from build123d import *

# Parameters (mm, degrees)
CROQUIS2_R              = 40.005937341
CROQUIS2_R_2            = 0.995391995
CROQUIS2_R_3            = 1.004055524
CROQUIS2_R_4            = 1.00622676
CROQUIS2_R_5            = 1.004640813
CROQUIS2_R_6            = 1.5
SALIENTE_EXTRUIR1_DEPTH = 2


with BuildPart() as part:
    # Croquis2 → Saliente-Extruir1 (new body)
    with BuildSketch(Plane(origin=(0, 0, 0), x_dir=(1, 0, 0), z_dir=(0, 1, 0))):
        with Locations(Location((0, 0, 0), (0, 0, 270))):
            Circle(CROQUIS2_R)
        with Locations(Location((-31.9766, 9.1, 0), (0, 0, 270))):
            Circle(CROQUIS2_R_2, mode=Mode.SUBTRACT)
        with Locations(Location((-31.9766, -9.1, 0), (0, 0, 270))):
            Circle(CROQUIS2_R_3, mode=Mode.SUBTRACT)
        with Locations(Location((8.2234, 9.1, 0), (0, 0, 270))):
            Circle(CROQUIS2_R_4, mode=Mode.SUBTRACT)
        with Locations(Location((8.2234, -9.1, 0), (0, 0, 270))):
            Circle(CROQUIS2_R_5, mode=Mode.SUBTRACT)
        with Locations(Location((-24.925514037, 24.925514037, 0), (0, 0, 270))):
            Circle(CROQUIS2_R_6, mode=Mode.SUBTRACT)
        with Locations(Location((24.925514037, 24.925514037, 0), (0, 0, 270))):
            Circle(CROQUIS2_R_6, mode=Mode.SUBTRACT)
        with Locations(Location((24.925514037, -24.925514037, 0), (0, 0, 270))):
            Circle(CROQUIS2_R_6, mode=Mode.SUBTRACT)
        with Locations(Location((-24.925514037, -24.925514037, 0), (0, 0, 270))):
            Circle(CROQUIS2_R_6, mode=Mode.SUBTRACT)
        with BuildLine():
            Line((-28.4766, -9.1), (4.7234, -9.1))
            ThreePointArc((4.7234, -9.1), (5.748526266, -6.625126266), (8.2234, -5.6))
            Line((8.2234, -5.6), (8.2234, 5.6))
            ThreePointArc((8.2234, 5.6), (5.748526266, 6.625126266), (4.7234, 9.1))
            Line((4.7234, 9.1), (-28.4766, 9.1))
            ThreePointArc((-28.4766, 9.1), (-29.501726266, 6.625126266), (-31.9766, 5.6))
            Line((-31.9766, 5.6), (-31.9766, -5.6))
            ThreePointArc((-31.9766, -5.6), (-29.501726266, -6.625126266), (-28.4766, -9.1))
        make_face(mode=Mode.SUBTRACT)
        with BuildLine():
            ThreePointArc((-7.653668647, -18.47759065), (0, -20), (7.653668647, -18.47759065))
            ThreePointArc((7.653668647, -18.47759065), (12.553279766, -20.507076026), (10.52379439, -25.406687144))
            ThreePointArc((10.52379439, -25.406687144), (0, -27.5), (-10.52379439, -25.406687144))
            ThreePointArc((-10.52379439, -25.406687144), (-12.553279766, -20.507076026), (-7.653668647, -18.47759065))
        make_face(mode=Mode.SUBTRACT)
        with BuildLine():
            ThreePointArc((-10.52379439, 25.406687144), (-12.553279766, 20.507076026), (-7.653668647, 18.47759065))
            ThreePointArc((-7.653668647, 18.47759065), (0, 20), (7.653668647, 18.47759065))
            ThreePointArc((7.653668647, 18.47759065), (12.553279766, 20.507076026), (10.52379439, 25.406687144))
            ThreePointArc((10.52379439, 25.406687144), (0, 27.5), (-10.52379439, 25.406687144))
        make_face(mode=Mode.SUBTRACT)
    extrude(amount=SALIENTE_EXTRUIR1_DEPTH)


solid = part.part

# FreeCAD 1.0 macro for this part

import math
import FreeCAD as App
import Part
import Sketcher
from FreeCAD import Vector
Q = App.Units.Quantity

doc = App.newDocument("Part")
body = doc.addObject("PartDesign::Body", "Body")

# Sketch on XZ plane
sketch1 = body.newObject("Sketcher::SketchObject", "Sketch")
sketch1.AttachmentSupport = (doc.getObject("XZ_Plane"), [""])
sketch1.MapMode = "FlatFace"
sketch1.addGeometry(Part.Circle(Vector(0, 0, 0), Vector(0, 0, 1), 40.005937), False)
sketch1.addGeometry(Part.Circle(Vector(-24.925514, -24.925514, 0), Vector(0, 0, 1), 1.5), False)
sketch1.addGeometry(Part.Circle(Vector(-31.9766, -9.1, 0), Vector(0, 0, 1), 0.995392), False)
sketch1.addGeometry(Part.Circle(Vector(-31.9766, 9.1, 0), Vector(0, 0, 1), 1.004056), False)
sketch1.addGeometry(Part.Circle(Vector(-24.925514, 24.925514, 0), Vector(0, 0, 1), 1.5), False)
sketch1.addGeometry(Part.LineSegment(Vector(4.7234, 9.1, 0), Vector(-28.4766, 9.1, 0)), False)
sketch1.addGeometry(Part.ArcOfCircle(Part.Circle(Vector(-31.9766, 9.1, 0), Vector(0, 0, 1), 3.5), math.radians(-90), math.radians(0)), False)
sketch1.addGeometry(Part.LineSegment(Vector(-31.9766, 5.6, 0), Vector(-31.9766, -5.6, 0)), False)
sketch1.addGeometry(Part.ArcOfCircle(Part.Circle(Vector(-31.9766, -9.1, 0), Vector(0, 0, 1), 3.5), math.radians(0), math.radians(90)), False)
sketch1.addGeometry(Part.LineSegment(Vector(-28.4766, -9.1, 0), Vector(4.7234, -9.1, 0)), False)
sketch1.addGeometry(Part.ArcOfCircle(Part.Circle(Vector(8.2234, -9.1, 0), Vector(0, 0, 1), 3.5), math.radians(90), math.radians(180)), False)
sketch1.addGeometry(Part.LineSegment(Vector(8.2234, -5.6, 0), Vector(8.2234, 5.6, 0)), False)
sketch1.addGeometry(Part.ArcOfCircle(Part.Circle(Vector(8.2234, 9.1, 0), Vector(0, 0, 1), 3.5), math.radians(-180), math.radians(-90)), False)
sketch1.addGeometry(Part.ArcOfCircle(Part.Circle(Vector(-9.088732, -21.942139, 0), Vector(0, 0, 1), 3.75), math.radians(67.5), math.radians(247.5)), False)
sketch1.addGeometry(Part.ArcOfCircle(Part.Circle(Vector(0, 0, 0), Vector(0, 0, 1), 27.5), math.radians(-112.5), math.radians(-67.5)), False)
sketch1.addGeometry(Part.ArcOfCircle(Part.Circle(Vector(9.088732, -21.942139, 0), Vector(0, 0, 1), 3.75), math.radians(-67.5), math.radians(112.5)), False)
sketch1.addGeometry(Part.ArcOfCircle(Part.Circle(Vector(0, 0, 0), Vector(0, 0, 1), 20), math.radians(-112.5), math.radians(-67.5)), False)
sketch1.addGeometry(Part.Circle(Vector(8.2234, -9.1, 0), Vector(0, 0, 1), 1.006227), False)
sketch1.addGeometry(Part.Circle(Vector(24.925514, -24.925514, 0), Vector(0, 0, 1), 1.5), False)
sketch1.addGeometry(Part.Circle(Vector(8.2234, 9.1, 0), Vector(0, 0, 1), 1.004641), False)
sketch1.addGeometry(Part.ArcOfCircle(Part.Circle(Vector(-9.088732, 21.942139, 0), Vector(0, 0, 1), 3.75), math.radians(112.5), math.radians(292.5)), False)
sketch1.addGeometry(Part.ArcOfCircle(Part.Circle(Vector(0, 0, 0), Vector(0, 0, 1), 20), math.radians(67.5), math.radians(112.5)), False)
sketch1.addGeometry(Part.ArcOfCircle(Part.Circle(Vector(9.088732, 21.942139, 0), Vector(0, 0, 1), 3.75), math.radians(-112.5), math.radians(67.5)), False)
sketch1.addGeometry(Part.ArcOfCircle(Part.Circle(Vector(0, 0, 0), Vector(0, 0, 1), 27.5), math.radians(67.5), math.radians(112.5)), False)
sketch1.addGeometry(Part.Circle(Vector(24.925514, 24.925514, 0), Vector(0, 0, 1), 1.5), False)
sketch1.addConstraint(Sketcher.Constraint("Coincident", 5, 2, 6, 2))
sketch1.addConstraint(Sketcher.Constraint("Coincident", 6, 1, 7, 1))
sketch1.addConstraint(Sketcher.Constraint("Coincident", 7, 2, 8, 2))
sketch1.addConstraint(Sketcher.Constraint("Coincident", 8, 1, 9, 1))
sketch1.addConstraint(Sketcher.Constraint("Coincident", 9, 2, 10, 2))
sketch1.addConstraint(Sketcher.Constraint("Coincident", 10, 1, 11, 1))
sketch1.addConstraint(Sketcher.Constraint("Coincident", 11, 2, 12, 2))
sketch1.addConstraint(Sketcher.Constraint("Coincident", 12, 1, 5, 1))
sketch1.addConstraint(Sketcher.Constraint("Tangent", 13, 2, 14, 1))
sketch1.addConstraint(Sketcher.Constraint("Tangent", 14, 2, 15, 1))
sketch1.addConstraint(Sketcher.Constraint("Tangent", 15, 2, 16, 2))
sketch1.addConstraint(Sketcher.Constraint("Tangent", 16, 1, 13, 1))
sketch1.addConstraint(Sketcher.Constraint("Tangent", 20, 2, 21, 2))
sketch1.addConstraint(Sketcher.Constraint("Tangent", 21, 1, 22, 1))
sketch1.addConstraint(Sketcher.Constraint("Tangent", 22, 2, 23, 1))
sketch1.addConstraint(Sketcher.Constraint("Tangent", 23, 2, 20, 1))
sketch1.addConstraint(Sketcher.Constraint("Horizontal", 5))
sketch1.addConstraint(Sketcher.Constraint("Vertical", 7))
sketch1.addConstraint(Sketcher.Constraint("Horizontal", 9))
sketch1.addConstraint(Sketcher.Constraint("Vertical", 11))
sketch1.addConstraint(Sketcher.Constraint("Coincident", 0, 3, -1, 1))
sketch1.addConstraint(Sketcher.Constraint("Coincident", 14, 3, -1, 1))
sketch1.addConstraint(Sketcher.Constraint("Coincident", 16, 3, -1, 1))
sketch1.addConstraint(Sketcher.Constraint("Coincident", 21, 3, -1, 1))
sketch1.addConstraint(Sketcher.Constraint("Coincident", 23, 3, -1, 1))
sketch1.addConstraint(Sketcher.Constraint("Coincident", 6, 3, 3, 3))
sketch1.addConstraint(Sketcher.Constraint("Coincident", 8, 3, 2, 3))
sketch1.addConstraint(Sketcher.Constraint("Coincident", 17, 3, 10, 3))
sketch1.addConstraint(Sketcher.Constraint("Coincident", 19, 3, 12, 3))
sketch1.addConstraint(Sketcher.Constraint("Equal", 1, 4))
sketch1.addConstraint(Sketcher.Constraint("Equal", 6, 8))
sketch1.addConstraint(Sketcher.Constraint("Equal", 8, 10))
sketch1.addConstraint(Sketcher.Constraint("Equal", 10, 12))
sketch1.addConstraint(Sketcher.Constraint("Equal", 4, 18))
sketch1.addConstraint(Sketcher.Constraint("Equal", 15, 20))
sketch1.addConstraint(Sketcher.Constraint("Equal", 16, 21))
sketch1.addConstraint(Sketcher.Constraint("Equal", 18, 24))
sketch1.addConstraint(Sketcher.Constraint("Symmetric", 4, 3, 18, 3, -1, 1))
sketch1.addConstraint(Sketcher.Constraint("Symmetric", 1, 3, 24, 3, -1, 1))
sketch1.addConstraint(Sketcher.Constraint("Symmetric", 1, 3, 18, 3, -2))
sketch1.addConstraint(Sketcher.Constraint("Symmetric", 2, 3, 3, 3, -1))
sketch1.addConstraint(Sketcher.Constraint("Symmetric", 10, 3, 12, 3, -1))
sketch1.addConstraint(Sketcher.Constraint("Horizontal", 8, 3, 10, 3))
sketch1.addConstraint(Sketcher.Constraint("Horizontal", 13, 3, 15, 3))
sketch1.addConstraint(Sketcher.Constraint("Horizontal", 20, 3, 22, 3))
sketch1.addConstraint(Sketcher.Constraint("Horizontal", 19, 3, 5, 2))
sketch1.addConstraint(Sketcher.Constraint("Horizontal", 17, 3, 8, 1))
sketch1.addConstraint(Sketcher.Constraint("Vertical", 13, 3, 20, 3))
sketch1.addConstraint(Sketcher.Constraint("Vertical", 8, 3, 6, 1))
sketch1.addConstraint(Sketcher.Constraint("Vertical", 19, 3, 10, 1))
sketch1.addConstraint(Sketcher.Constraint("Diameter", 1, Q("3 mm")))
sketch1.addConstraint(Sketcher.Constraint("Radius", 16, Q("20 mm")))
sketch1.addConstraint(Sketcher.Constraint("Radius", 6, Q("3.5 mm")))
sketch1.addConstraint(Sketcher.Constraint("Radius", 14, Q("27.5 mm")))
sketch1.addConstraint(Sketcher.Constraint("DistanceX", 5, 2, 5, 1, Q("33.2 mm")))
sketch1.addConstraint(Sketcher.Constraint("DistanceY", 7, 2, 7, 1, Q("11.2 mm")))
sketch1.addConstraint(Sketcher.Constraint("Diameter", 3, Q("2.008111 mm")))
sketch1.addConstraint(Sketcher.Constraint("Diameter", 19, Q("2.009282 mm")))
sketch1.addConstraint(Sketcher.Constraint("Diameter", 0, Q("80.011875 mm")))
sketch1.addConstraint(Sketcher.Constraint("Diameter", 2, Q("1.990784 mm")))
sketch1.addConstraint(Sketcher.Constraint("Diameter", 17, Q("2.012454 mm")))
sketch1.addConstraint(Sketcher.Constraint("DistanceX", 2, 3, -1, 1, Q("31.9766 mm")))
sketch1.addConstraint(Sketcher.Constraint("DistanceX", 16, 1, 15, 3, Q("16.7424 mm")))
sketch1.addConstraint(Sketcher.Constraint("DistanceY", 1, 3, 4, 3, Q("49.851028 mm")))
sketch1.addConstraint(Sketcher.Constraint("DistanceX", 1, 3, 13, 2, Q("14.40172 mm")))
pad1 = body.newObject("PartDesign::Pad", "Pad")
pad1.Profile = sketch1
pad1.Length = 2
pad1.Reversed = True

doc.recompute()
